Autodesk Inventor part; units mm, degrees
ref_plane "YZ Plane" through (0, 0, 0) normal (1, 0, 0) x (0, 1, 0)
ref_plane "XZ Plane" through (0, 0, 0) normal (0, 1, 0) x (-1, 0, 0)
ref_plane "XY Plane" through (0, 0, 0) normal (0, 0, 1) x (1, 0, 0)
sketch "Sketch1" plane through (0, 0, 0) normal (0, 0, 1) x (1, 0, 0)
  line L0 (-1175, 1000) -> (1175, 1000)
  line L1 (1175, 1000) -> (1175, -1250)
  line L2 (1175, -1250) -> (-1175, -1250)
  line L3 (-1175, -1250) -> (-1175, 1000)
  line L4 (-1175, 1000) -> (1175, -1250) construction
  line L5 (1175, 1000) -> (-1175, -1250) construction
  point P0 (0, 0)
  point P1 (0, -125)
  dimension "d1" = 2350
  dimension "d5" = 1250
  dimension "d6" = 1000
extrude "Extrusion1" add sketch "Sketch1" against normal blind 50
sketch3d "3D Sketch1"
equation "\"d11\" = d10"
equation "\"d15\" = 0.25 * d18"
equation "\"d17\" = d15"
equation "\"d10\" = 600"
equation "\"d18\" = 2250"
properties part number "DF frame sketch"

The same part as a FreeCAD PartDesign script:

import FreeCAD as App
import Part
import Sketcher

V = App.Vector
Q = App.Units.Quantity

doc = App.newDocument("Part")
body = doc.addObject("PartDesign::Body", "Body")

sketch1 = body.newObject("Sketcher::SketchObject", "Sketch")
sketch1.AttachmentSupport = (doc.getObject("XY_Plane"), [""])
sketch1.MapMode = "FlatFace"
sketch1.addGeometry([
    Part.LineSegment(V(1175, 1000, 0), V(-1175, 1000, 0)),
    Part.LineSegment(V(-1175, 1000, 0), V(-1175, -1250, 0)),
    Part.LineSegment(V(-1175, -1250, 0), V(1175, -1250, 0)),
    Part.LineSegment(V(1175, -1250, 0), V(1175, 1000, 0)),
], False)
sketch1.addConstraint([
    Sketcher.Constraint("Coincident", 0, 2, 1, 1),
    Sketcher.Constraint("Coincident", 1, 2, 2, 1),
    Sketcher.Constraint("Coincident", 2, 2, 3, 1),
    Sketcher.Constraint("Coincident", 3, 2, 0, 1),
    Sketcher.Constraint("Horizontal", 0),
    Sketcher.Constraint("Vertical", 1),
    Sketcher.Constraint("Horizontal", 2),
    Sketcher.Constraint("Vertical", 3),
    Sketcher.Constraint("DistanceX", 0, 2, 0, 1, Q("2350 mm")),
    Sketcher.Constraint("DistanceY", -1, 1, 0, 2, Q("1000 mm")),
    Sketcher.Constraint("DistanceY", 1, 2, -1, 1, Q("1250 mm")),
    Sketcher.Constraint("DistanceX", 0, 2, -1, 1, Q("1175 mm")),
])
pad1 = body.newObject("PartDesign::Pad", "Pad")
pad1.Profile = sketch1
pad1.Length = 50
pad1.Reversed = True

doc.recompute()
